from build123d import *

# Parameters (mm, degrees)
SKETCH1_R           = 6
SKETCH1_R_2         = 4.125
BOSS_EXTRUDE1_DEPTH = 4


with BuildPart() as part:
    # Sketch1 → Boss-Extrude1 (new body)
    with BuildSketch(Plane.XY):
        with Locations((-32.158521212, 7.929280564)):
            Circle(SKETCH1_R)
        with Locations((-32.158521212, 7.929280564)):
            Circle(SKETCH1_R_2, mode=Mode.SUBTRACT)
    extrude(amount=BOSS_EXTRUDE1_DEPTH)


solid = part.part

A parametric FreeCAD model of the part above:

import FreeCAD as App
import Part
import Sketcher
from FreeCAD import Vector
Q = App.Units.Quantity

doc = App.newDocument("Part")
body = doc.addObject("PartDesign::Body", "Body")

# Sketch on XY plane
sketch1 = body.newObject("Sketcher::SketchObject", "Sketch")
sketch1.AttachmentSupport = (doc.getObject("XY_Plane"), [""])
sketch1.MapMode = "FlatFace"
sketch1.addGeometry(Part.Circle(Vector(-32.2, 7.9, 0), Vector(0, 0, 1), 6), False)
sketch1.addGeometry(Part.Circle(Vector(-32.2, 7.9, 0), Vector(0, 0, 1), 4.1), False)
sketch1.addConstraint(Sketcher.Constraint("Coincident", 1, 3, 0, 3))
sketch1.addConstraint(Sketcher.Constraint("Diameter", 0, Q("12 mm")))
sketch1.addConstraint(Sketcher.Constraint("Diameter", 1, Q("8.25 mm")))
sketch1.addConstraint(Sketcher.Constraint("DistanceX", 0, 3, -1, 1, Q("32.158521 mm")))
sketch1.addConstraint(Sketcher.Constraint("DistanceY", -1, 1, 0, 3, Q("7.929281 mm")))
pad1 = body.newObject("PartDesign::Pad", "Pad")
pad1.Profile = sketch1
pad1.Length = 4

doc.recompute()
